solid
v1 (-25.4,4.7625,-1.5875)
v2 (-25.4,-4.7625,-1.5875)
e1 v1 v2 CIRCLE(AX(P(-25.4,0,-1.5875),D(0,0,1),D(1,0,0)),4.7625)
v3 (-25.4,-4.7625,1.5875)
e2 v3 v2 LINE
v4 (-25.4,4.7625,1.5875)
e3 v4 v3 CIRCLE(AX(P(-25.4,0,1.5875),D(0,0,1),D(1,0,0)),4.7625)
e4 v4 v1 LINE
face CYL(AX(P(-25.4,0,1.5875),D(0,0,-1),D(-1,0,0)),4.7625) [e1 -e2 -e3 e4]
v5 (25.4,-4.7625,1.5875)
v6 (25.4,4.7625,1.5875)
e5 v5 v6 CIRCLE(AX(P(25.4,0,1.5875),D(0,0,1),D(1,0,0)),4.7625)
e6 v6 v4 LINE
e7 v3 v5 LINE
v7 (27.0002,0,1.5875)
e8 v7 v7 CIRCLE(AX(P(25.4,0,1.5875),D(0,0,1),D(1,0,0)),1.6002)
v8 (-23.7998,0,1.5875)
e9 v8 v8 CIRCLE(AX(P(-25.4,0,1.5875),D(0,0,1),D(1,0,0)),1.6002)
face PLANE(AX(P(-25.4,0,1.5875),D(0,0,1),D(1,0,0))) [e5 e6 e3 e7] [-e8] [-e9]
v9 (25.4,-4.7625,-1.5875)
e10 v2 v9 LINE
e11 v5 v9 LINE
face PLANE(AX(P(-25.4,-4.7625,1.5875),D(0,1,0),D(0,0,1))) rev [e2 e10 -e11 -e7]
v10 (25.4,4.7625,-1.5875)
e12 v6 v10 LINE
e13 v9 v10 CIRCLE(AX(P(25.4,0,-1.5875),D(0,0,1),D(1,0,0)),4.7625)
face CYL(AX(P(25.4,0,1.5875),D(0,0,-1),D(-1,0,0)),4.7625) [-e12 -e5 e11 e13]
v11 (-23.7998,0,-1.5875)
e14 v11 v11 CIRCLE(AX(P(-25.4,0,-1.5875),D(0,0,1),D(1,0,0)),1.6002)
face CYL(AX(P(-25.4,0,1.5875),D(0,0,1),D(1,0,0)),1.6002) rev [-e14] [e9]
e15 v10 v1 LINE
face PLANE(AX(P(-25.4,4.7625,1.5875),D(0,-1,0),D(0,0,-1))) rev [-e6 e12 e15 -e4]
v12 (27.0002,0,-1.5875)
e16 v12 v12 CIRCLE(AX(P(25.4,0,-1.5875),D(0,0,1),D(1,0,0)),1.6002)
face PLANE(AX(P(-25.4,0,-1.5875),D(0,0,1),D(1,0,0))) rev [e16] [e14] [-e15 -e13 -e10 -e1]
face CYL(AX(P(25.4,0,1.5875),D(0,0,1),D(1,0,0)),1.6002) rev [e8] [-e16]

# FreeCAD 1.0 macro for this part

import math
import FreeCAD as App
import Part
import Sketcher

V = App.Vector
Q = App.Units.Quantity

doc = App.newDocument("Part")
body = doc.addObject("PartDesign::Body", "Body")

# Sketch on XY plane
sketch1 = doc.addObject("Sketcher::SketchObject", "Sketch")
body.addObject(sketch1)
sketch1.AttachmentSupport = (doc.XY_Plane, [""])
sketch1.MapMode = "FlatFace"
sketch1.addGeometry([
    Part.LineSegment(V(25.4, 4.8, 0), V(-25.4, 4.8, 0)),
    Part.ArcOfCircle(Part.Circle(V(-25.4, 0, 0), V(0, 0, 1), 4.8), math.radians(90), math.radians(270)),
    Part.LineSegment(V(-25.4, -4.8, 0), V(25.4, -4.8, 0)),
    Part.ArcOfCircle(Part.Circle(V(25.4, 0, 0), V(0, 0, 1), 4.8), math.radians(-90), math.radians(90)),
], False)
sketch1.addConstraint([
    Sketcher.Constraint("Tangent", 0, 2, 1, 1),
    Sketcher.Constraint("Tangent", 1, 2, 2, 1),
    Sketcher.Constraint("Tangent", 2, 2, 3, 1),
    Sketcher.Constraint("Tangent", 3, 2, 0, 1),
    Sketcher.Constraint("Horizontal", 0),
    Sketcher.Constraint("Horizontal", 2),
    Sketcher.Constraint("Symmetric", 1, 3, 3, 3, -1, 1),
    Sketcher.Constraint("DistanceX", 0, 2, 0, 1, Q("2 in")),
    Sketcher.Constraint("Radius", 1, Q("0.1875 in")),
])
pad1 = doc.addObject("PartDesign::Pad", "Pad")
body.addObject(pad1)
pad1.Profile = sketch1
pad1.Length = Q("0.125 in")
pad1.Midplane = True

# Sketch on XY plane
sketch2 = doc.addObject("Sketcher::SketchObject", "Sketch001")
body.addObject(sketch2)
sketch2.AttachmentSupport = (doc.XY_Plane, [""])
sketch2.MapMode = "FlatFace"
sketch2.AttachmentOffset = App.Placement(V(0, 0, 0.0625 * 25.4), App.Rotation())
sketch2.addGeometry([
    Part.Circle(V(-25.4, 0, 0), V(0, 0, 1), 1.6),
    Part.Circle(V(25.4, 0, 0), V(0, 0, 1), 1.6),
], False)
sketch2.addConstraint([
    Sketcher.Constraint("Equal", 0, 1),
    Sketcher.Constraint("Symmetric", 0, 3, 1, 3, -1, 1),
    Sketcher.Constraint("PointOnObject", 0, 3, -1),
    Sketcher.Constraint("Diameter", 0, Q("0.126 in")),
    Sketcher.Constraint("DistanceX", 0, 3, -1, 1, Q("1 in")),
])
doc.recompute()
hole = doc.addObject("PartDesign::Hole", "Hole")
body.addObject(hole)
hole.Profile = sketch2
hole.ThreadType = "None"
hole.Diameter = Q("0.126 in")
hole.DepthType = "ThroughAll"

doc.recompute()
